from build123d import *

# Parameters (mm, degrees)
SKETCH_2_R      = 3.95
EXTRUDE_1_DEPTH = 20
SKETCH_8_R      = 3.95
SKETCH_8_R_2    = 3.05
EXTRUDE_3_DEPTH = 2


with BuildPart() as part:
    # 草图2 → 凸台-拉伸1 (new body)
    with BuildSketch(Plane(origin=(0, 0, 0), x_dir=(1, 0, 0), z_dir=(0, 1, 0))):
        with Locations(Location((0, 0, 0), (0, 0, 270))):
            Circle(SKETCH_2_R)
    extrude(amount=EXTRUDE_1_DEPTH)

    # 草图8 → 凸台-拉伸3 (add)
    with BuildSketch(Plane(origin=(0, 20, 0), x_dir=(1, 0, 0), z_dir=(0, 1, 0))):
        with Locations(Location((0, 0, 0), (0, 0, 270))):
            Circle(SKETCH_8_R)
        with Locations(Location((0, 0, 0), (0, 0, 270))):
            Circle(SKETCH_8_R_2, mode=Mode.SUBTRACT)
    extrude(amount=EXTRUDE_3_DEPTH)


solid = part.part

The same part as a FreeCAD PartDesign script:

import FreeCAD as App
import Part
import Sketcher
Q = App.Units.Quantity

doc = App.newDocument("Part")
params = doc.addObject("Spreadsheet::Sheet", "Params")
for row, (alias, value) in enumerate([
    ("sketch1_diameter", "7.9 mm"),
    ("pad1_length", "20 mm"),
    ("sketch2_diameter", "7.9 mm"),
    ("sketch2_diameter2", "6.1 mm"),
    ("pad2_length", "2 mm"),
], start=1):
    params.set(f"A{row}", alias)
    params.set(f"B{row}", "=" + value)
    params.setAlias(f"B{row}", alias)

body = doc.addObject("PartDesign::Body", "Body")

sketch1 = body.newObject("Sketcher::SketchObject", "Sketch")
sketch1.AttachmentSupport = (doc.getObject("XZ_Plane"), [""])
sketch1.MapMode = "FlatFace"
sketch1.addGeometry(Part.Circle(App.Vector(0, 0, 0), App.Vector(0, 0, 1), 4), False)
sketch1.addConstraint([
    Sketcher.Constraint("Coincident", 0, 3, -1, 1),
    Sketcher.Constraint("Diameter", 0, Q("7.9 mm")),
])
sketch1.setExpression("Constraints[1]", "Params.sketch1_diameter")
pad1 = body.newObject("PartDesign::Pad", "Pad")
pad1.Profile = sketch1
pad1.setExpression("Length", "Params.pad1_length")
pad1.Reversed = True

sketch2 = body.newObject("Sketcher::SketchObject", "Sketch001")
sketch2.AttachmentSupport = (doc.getObject("XZ_Plane"), [""])
sketch2.MapMode = "FlatFace"
sketch2.AttachmentOffset = App.Placement(App.Vector(0, 0, -20), App.Rotation())
sketch2.addGeometry([
    Part.Circle(App.Vector(0, 0, 0), App.Vector(0, 0, 1), 4),
    Part.Circle(App.Vector(0, 0, 0), App.Vector(0, 0, 1), 3),
], False)
sketch2.addConstraint([
    Sketcher.Constraint("Coincident", 0, 3, -1, 1),
    Sketcher.Constraint("Coincident", 1, 3, -1, 1),
    Sketcher.Constraint("Diameter", 0, Q("7.9 mm")),
    Sketcher.Constraint("Diameter", 1, Q("6.1 mm")),
])
sketch2.setExpression("Constraints[2]", "Params.sketch2_diameter")
sketch2.setExpression("Constraints[3]", "Params.sketch2_diameter2")
pad2 = body.newObject("PartDesign::Pad", "Pad001")
pad2.Profile = sketch2
pad2.setExpression("Length", "Params.pad2_length")
pad2.Reversed = True

doc.recompute()
